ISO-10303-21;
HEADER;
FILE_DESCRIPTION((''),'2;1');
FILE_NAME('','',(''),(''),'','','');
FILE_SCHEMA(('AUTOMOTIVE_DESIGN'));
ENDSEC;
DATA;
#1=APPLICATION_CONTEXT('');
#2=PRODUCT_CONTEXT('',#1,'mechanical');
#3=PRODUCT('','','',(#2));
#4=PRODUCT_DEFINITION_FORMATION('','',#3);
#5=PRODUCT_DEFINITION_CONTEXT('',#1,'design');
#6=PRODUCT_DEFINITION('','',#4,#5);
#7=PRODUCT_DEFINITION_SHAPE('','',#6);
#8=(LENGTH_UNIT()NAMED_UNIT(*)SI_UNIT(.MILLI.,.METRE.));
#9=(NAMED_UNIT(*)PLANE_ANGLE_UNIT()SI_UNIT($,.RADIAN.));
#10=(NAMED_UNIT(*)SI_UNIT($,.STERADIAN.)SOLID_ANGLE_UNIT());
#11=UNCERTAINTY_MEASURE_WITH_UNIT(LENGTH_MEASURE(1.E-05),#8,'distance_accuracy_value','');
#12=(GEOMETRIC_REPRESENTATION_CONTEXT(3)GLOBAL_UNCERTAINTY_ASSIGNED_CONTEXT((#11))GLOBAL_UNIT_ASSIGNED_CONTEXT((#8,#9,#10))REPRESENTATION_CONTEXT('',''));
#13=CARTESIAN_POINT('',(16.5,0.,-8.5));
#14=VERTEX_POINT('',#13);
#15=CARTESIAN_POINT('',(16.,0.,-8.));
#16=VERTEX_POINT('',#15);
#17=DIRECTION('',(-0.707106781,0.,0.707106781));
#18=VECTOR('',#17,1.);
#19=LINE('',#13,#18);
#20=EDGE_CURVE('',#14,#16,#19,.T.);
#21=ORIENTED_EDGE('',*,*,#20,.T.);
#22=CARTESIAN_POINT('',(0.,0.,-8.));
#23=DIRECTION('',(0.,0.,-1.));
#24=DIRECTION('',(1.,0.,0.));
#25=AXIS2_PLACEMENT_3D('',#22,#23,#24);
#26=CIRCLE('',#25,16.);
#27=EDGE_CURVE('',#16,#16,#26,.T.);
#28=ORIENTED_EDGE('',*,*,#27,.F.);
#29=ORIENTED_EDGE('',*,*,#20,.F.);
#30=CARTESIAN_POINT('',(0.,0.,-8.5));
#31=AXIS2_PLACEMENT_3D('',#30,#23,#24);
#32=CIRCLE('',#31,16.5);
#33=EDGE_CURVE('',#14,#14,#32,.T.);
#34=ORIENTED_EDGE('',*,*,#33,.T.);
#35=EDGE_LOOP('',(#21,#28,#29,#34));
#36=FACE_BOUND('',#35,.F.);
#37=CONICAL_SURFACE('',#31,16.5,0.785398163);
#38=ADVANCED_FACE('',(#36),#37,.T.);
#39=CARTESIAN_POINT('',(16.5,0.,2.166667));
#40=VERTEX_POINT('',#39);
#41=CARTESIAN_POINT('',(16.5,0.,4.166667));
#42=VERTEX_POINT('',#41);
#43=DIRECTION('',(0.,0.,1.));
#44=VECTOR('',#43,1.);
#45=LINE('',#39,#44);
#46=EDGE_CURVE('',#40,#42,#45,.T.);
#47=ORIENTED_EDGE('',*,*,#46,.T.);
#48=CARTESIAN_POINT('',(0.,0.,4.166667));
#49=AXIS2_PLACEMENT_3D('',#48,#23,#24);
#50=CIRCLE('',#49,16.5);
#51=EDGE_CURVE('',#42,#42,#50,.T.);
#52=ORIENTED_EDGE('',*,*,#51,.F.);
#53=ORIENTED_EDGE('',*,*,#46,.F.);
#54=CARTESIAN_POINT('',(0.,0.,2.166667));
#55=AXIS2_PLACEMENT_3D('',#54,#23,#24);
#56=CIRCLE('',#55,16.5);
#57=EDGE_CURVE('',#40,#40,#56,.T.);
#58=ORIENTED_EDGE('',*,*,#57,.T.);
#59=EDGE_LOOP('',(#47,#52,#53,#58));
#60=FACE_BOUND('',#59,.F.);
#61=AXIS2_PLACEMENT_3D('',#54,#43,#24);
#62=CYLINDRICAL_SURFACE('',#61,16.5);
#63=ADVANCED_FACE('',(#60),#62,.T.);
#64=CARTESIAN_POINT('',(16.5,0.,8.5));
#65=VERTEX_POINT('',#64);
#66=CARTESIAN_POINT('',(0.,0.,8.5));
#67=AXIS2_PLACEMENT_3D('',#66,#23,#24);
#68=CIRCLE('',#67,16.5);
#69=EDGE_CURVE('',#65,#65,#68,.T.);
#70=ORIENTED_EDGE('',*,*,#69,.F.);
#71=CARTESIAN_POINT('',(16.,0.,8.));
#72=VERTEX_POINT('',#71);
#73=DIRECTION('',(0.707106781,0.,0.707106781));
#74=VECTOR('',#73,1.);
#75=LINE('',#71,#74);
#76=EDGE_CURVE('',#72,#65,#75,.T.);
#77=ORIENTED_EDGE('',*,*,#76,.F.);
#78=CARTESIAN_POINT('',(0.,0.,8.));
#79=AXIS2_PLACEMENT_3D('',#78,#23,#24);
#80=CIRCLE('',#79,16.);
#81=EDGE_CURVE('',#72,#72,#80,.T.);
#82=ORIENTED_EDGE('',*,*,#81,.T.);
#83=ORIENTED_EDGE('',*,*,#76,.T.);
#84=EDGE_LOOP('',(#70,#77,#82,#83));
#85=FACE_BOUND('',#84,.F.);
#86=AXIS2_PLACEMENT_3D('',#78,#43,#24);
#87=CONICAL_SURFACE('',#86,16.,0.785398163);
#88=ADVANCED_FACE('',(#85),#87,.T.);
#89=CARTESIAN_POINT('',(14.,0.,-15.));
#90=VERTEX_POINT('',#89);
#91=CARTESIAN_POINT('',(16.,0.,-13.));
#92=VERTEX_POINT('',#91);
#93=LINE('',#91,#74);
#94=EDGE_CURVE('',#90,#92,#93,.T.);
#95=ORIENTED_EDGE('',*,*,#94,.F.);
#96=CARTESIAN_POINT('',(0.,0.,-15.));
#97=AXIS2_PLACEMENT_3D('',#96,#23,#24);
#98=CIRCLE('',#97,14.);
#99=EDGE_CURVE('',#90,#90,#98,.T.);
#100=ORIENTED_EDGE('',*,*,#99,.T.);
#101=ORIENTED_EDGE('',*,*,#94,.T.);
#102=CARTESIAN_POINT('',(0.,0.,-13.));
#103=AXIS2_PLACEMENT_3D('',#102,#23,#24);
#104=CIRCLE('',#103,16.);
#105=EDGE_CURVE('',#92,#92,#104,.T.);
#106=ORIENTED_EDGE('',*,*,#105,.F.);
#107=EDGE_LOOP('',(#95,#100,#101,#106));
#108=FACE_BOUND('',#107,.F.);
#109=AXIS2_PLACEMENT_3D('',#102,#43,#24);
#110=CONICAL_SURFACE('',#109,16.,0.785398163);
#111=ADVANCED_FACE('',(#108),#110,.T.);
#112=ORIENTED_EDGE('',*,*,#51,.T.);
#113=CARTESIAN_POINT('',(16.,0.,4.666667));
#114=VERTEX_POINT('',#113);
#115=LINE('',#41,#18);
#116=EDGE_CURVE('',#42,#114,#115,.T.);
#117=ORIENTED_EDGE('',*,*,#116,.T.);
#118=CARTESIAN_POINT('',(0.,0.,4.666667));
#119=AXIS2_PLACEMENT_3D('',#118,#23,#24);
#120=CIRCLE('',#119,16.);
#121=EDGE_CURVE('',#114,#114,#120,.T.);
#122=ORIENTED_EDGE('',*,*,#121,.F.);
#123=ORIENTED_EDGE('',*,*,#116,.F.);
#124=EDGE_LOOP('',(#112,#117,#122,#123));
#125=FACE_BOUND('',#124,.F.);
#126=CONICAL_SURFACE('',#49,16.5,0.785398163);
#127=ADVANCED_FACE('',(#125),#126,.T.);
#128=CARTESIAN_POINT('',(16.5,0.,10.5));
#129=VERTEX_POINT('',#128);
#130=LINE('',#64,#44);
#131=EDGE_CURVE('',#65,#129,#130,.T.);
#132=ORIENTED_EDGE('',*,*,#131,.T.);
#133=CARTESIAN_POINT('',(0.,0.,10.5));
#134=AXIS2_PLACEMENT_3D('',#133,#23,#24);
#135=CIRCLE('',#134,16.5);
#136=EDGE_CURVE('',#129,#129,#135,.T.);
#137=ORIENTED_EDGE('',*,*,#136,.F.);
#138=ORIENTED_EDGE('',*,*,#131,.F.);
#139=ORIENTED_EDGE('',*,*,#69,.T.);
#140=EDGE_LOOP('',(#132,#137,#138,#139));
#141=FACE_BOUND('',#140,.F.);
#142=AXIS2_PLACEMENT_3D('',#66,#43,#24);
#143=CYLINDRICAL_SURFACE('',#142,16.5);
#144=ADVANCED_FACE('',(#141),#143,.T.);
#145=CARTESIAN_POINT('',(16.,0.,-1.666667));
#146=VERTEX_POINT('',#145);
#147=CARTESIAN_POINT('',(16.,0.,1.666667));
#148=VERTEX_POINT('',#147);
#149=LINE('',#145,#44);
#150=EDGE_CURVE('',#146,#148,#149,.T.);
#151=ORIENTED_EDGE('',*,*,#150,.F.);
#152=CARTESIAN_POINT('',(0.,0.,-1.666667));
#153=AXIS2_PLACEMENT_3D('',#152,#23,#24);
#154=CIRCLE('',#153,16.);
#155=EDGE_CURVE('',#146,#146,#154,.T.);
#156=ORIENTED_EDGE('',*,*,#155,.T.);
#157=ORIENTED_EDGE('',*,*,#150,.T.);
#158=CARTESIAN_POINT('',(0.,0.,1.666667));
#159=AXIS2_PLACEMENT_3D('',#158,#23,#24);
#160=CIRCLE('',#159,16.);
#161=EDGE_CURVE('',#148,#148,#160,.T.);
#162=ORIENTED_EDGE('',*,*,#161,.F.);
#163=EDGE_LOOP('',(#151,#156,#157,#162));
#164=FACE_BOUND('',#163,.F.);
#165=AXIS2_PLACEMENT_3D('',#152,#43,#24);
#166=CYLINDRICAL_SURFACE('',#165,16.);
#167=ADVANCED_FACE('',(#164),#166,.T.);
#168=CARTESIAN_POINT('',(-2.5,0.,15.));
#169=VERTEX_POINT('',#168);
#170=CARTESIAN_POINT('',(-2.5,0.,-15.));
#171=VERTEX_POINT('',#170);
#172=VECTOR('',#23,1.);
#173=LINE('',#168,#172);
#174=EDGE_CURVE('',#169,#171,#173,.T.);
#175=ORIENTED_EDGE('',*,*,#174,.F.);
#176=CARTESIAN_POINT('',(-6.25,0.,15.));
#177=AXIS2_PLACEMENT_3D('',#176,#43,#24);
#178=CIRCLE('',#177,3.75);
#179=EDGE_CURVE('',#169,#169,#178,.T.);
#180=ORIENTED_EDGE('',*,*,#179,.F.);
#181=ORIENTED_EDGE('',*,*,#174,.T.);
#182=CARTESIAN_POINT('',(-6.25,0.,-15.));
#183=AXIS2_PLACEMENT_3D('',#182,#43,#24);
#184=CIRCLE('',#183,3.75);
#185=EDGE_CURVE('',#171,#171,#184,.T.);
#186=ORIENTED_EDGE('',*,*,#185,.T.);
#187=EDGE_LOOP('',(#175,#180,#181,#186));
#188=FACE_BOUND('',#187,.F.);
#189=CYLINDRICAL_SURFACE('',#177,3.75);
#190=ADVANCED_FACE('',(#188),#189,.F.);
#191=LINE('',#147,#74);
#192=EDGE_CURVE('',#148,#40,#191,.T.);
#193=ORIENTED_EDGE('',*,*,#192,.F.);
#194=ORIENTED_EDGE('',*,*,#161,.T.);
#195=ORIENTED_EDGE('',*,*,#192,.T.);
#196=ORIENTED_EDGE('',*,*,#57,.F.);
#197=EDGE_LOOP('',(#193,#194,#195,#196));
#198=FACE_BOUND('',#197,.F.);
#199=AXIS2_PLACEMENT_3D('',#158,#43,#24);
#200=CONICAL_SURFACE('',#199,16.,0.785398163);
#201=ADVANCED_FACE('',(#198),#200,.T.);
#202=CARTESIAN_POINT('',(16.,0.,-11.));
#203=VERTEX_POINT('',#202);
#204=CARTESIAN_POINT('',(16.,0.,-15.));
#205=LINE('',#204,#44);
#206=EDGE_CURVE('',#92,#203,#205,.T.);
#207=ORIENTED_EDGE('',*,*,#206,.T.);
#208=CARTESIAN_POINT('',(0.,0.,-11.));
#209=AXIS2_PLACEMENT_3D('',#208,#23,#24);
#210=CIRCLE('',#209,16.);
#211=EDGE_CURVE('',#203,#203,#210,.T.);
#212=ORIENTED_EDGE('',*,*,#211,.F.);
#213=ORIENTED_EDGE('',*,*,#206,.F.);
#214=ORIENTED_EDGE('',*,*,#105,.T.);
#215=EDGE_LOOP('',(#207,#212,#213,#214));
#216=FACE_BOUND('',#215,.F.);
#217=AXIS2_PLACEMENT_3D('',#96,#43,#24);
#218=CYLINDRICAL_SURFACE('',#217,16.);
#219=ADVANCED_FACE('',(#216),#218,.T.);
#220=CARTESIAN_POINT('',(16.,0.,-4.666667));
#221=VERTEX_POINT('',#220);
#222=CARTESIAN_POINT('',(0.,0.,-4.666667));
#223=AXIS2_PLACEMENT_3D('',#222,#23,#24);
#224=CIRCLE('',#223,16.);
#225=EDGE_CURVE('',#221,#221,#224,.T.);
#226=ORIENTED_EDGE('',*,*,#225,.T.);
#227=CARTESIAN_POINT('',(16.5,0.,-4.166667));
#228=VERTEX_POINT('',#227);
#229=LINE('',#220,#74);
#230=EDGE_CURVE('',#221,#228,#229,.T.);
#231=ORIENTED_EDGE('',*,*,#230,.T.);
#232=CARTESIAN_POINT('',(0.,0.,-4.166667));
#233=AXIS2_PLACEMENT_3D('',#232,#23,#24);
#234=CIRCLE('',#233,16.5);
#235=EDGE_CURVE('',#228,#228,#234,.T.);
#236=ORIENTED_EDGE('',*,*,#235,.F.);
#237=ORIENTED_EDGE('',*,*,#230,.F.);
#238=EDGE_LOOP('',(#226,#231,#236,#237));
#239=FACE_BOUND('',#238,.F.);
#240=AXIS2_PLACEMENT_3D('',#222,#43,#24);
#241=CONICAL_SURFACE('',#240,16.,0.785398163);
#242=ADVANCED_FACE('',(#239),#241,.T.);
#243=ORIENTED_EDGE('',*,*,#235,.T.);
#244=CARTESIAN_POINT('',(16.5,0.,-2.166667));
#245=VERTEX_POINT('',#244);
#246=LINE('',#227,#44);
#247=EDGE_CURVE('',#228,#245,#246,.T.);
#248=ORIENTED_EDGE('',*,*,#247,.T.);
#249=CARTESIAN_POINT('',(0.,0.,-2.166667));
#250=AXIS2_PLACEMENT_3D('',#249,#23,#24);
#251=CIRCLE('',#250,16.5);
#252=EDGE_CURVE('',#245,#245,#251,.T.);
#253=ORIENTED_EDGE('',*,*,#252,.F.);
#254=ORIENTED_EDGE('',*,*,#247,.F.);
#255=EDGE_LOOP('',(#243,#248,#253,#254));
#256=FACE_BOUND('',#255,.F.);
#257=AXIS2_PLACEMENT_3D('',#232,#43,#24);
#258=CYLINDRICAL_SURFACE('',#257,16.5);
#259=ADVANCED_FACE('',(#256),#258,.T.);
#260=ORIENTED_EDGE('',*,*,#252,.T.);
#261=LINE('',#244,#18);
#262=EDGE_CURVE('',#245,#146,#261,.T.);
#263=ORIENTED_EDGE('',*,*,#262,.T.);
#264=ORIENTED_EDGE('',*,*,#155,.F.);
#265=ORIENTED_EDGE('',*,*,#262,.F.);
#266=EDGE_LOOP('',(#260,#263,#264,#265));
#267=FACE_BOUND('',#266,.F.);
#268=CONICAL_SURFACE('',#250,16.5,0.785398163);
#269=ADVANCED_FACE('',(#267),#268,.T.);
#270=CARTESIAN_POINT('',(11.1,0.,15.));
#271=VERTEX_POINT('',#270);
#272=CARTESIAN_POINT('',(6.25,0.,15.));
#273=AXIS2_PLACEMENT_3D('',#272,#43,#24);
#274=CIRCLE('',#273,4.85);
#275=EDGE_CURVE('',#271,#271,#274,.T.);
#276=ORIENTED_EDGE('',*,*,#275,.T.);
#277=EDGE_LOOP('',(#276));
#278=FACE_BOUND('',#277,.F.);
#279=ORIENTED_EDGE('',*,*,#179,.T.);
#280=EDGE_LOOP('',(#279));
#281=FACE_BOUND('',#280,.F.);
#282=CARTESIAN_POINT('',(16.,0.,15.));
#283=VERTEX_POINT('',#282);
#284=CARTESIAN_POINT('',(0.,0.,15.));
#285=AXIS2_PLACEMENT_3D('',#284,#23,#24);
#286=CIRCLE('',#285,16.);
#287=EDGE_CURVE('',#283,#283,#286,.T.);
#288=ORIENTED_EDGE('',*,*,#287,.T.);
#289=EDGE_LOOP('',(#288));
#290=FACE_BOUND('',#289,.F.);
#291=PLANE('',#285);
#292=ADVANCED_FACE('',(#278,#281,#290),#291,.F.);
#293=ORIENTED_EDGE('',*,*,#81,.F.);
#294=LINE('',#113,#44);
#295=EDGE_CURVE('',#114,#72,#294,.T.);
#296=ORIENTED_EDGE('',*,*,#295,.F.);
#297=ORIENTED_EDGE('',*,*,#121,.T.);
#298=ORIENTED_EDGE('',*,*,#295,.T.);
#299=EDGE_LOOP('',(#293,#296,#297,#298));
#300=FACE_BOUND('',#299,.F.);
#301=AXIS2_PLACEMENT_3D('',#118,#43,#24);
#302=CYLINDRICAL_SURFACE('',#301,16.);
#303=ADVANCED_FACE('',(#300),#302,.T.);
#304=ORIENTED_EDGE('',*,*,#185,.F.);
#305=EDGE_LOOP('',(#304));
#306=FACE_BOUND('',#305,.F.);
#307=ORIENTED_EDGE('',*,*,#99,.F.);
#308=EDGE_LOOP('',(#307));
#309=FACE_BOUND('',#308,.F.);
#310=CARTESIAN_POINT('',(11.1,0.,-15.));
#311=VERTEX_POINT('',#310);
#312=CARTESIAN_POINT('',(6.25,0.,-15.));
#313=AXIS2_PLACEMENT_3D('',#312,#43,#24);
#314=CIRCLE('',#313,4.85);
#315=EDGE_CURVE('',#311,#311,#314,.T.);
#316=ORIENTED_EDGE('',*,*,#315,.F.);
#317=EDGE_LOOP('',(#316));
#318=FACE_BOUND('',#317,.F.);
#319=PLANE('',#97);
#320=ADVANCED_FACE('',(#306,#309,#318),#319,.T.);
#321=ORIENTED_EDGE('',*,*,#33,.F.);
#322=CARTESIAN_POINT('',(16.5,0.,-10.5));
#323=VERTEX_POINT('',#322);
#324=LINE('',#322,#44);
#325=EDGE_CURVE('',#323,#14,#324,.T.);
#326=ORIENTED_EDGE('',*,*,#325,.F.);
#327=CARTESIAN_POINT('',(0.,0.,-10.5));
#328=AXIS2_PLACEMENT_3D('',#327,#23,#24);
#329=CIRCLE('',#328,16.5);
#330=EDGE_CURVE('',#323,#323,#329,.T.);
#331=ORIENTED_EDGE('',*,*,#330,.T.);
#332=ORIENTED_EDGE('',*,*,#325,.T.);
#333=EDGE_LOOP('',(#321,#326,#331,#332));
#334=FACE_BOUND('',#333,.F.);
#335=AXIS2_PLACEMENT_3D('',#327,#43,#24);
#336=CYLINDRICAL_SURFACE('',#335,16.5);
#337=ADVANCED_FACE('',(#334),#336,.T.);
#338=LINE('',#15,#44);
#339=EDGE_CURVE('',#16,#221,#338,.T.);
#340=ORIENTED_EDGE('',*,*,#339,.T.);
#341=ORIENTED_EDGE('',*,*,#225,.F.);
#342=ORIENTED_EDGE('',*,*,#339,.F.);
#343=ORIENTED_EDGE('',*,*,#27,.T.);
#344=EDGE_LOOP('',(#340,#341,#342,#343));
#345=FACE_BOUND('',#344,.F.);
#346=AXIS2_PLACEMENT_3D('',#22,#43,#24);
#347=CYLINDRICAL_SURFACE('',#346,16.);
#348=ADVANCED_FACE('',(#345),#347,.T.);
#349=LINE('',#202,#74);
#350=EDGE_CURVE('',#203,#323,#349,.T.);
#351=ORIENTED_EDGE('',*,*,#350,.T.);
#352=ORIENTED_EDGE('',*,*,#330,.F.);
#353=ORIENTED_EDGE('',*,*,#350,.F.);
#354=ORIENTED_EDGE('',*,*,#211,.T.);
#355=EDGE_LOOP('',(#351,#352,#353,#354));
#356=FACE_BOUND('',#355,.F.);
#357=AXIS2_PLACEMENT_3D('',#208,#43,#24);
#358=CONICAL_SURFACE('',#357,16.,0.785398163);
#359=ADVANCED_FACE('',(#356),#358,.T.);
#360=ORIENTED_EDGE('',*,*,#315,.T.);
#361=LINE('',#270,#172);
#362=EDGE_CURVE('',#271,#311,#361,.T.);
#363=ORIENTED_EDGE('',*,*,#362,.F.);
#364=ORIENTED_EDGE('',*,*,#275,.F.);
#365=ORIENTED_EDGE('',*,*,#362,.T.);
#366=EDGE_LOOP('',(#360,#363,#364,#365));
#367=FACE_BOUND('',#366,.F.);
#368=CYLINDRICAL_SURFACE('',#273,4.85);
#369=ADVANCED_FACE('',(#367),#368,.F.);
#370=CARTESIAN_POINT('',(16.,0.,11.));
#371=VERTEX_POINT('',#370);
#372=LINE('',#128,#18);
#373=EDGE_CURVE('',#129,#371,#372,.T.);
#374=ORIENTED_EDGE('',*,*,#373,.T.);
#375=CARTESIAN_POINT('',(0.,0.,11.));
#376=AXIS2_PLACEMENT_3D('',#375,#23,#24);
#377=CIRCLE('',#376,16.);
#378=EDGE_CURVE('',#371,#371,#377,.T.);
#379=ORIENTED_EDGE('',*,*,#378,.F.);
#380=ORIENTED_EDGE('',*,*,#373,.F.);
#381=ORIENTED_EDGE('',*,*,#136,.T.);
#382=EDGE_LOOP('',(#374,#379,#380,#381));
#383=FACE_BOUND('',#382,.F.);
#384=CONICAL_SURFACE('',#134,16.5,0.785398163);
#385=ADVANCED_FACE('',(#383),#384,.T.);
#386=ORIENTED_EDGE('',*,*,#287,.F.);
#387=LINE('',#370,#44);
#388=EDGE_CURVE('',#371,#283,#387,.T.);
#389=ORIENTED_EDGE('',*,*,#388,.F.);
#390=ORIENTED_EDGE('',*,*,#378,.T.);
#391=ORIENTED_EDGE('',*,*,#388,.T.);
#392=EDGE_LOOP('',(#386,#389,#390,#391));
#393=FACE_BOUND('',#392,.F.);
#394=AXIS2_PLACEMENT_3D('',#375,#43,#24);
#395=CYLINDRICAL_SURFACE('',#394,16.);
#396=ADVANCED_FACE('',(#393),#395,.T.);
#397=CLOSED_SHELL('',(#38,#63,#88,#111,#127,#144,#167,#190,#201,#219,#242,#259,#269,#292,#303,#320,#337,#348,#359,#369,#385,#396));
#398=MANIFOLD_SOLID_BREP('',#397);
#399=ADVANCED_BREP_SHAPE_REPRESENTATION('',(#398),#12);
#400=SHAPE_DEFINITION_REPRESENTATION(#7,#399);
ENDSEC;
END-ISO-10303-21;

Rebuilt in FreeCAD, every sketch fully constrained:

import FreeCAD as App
import Part
import Sketcher
Q = App.Units.Quantity


def edges_at(feature, points):
    """Names of the edges that pass closest to the given points."""
    edges = feature.Shape.Edges
    near = lambda p: min(range(len(edges)), key=lambda i: edges[i].distToShape(Part.Vertex(*p))[0])
    return sorted({f"Edge{near(p) + 1}" for p in points})


def add_polygon(sketch, points):
    """Adds a closed chain of lines whose ends are joined by coincident constraints."""
    first, n = sketch.GeometryCount, len(points)
    for a, b in zip(points, points[1:] + points[:1]):
        sketch.addGeometry(Part.LineSegment(App.Vector(*a, 0), App.Vector(*b, 0)), False)
    for i in range(n):
        sketch.addConstraint(Sketcher.Constraint("Coincident", first + i, 2, first + (i + 1) % n, 1))

doc = App.newDocument("Part")
body = doc.addObject("PartDesign::Body", "Body")

sketch1 = doc.addObject("Sketcher::SketchObject", "Sketch")
body.addObject(sketch1)
sketch1.AttachmentSupport = (doc.XZ_Plane, [""])
sketch1.MapMode = "FlatFace"
add_polygon(sketch1, [(16, 15), (0, 15), (0, -15), (16, -15), (16, -11), (16.5, -10.5), (16.5, -8.5), (16, -8), (16, -4.7), (16.5, -4.2), (16.5, -2.2), (16, -1.7), (16, 1.7), (16.5, 2.2), (16.5, 4.2), (16, 4.7), (16, 8), (16.5, 8.5), (16.5, 10.5), (16, 11)])
sketch1.addConstraint([
    Sketcher.Constraint("Horizontal", 0),
    Sketcher.Constraint("Vertical", 1),
    Sketcher.Constraint("Horizontal", 2),
    Sketcher.Constraint("Vertical", 3),
    Sketcher.Constraint("Vertical", 5),
    Sketcher.Constraint("Vertical", 7),
    Sketcher.Constraint("Vertical", 9),
    Sketcher.Constraint("Vertical", 11),
    Sketcher.Constraint("Vertical", 13),
    Sketcher.Constraint("Vertical", 15),
    Sketcher.Constraint("Vertical", 17),
    Sketcher.Constraint("Vertical", 19),
    Sketcher.Constraint("Symmetric", 0, 2, 1, 2, -1, 1),
    Sketcher.Constraint("Symmetric", 9, 2, 12, 2, -1),
    Sketcher.Constraint("Symmetric", 7, 2, 14, 2, -1),
    Sketcher.Constraint("Symmetric", 5, 2, 16, 2, -1),
    Sketcher.Constraint("Symmetric", 3, 2, 18, 2, -1),
    Sketcher.Constraint("Perpendicular", 4, 6),
    Sketcher.Constraint("Perpendicular", 6, 8),
    Sketcher.Constraint("Perpendicular", 8, 10),
    Sketcher.Constraint("Perpendicular", 10, 12),
    Sketcher.Constraint("Perpendicular", 12, 14),
    Sketcher.Constraint("Perpendicular", 14, 16),
    Sketcher.Constraint("Perpendicular", 16, 18),
    Sketcher.Constraint("Vertical", 3, 2, 6, 2),
    Sketcher.Constraint("Vertical", 5, 2, 8, 2),
    Sketcher.Constraint("Vertical", 7, 2, 10, 2),
    Sketcher.Constraint("Equal", 5, 9),
    Sketcher.Constraint("Equal", 7, 11),
    Sketcher.Constraint("Equal", 9, 13),
    Sketcher.Constraint("DistanceX", 0, 2, 0, 1, Q("16 mm")),
    Sketcher.Constraint("DistanceY", 1, 2, 1, 1, Q("30 mm")),
    Sketcher.Constraint("DistanceY", 3, 1, 3, 2, Q("4 mm")),
    Sketcher.Constraint("DistanceY", 5, 1, 5, 2, Q("2 mm")),
    Sketcher.Constraint("DistanceY", 6, 2, -1, 1, Q("8 mm")),
])
revolution = doc.addObject("PartDesign::Revolution", "Revolution")
body.addObject(revolution)
revolution.Profile = sketch1
revolution.ReferenceAxis = (sketch1, ["V_Axis"])
revolution.Angle = 360

sketch2 = doc.addObject("Sketcher::SketchObject", "Sketch001")
body.addObject(sketch2)
sketch2.AttachmentSupport = (doc.XY_Plane, [""])
sketch2.MapMode = "FlatFace"
sketch2.AttachmentOffset = App.Placement(App.Vector(0, 0, 15), App.Rotation())
sketch2.addGeometry([
    Part.Circle(App.Vector(-6.2, 0, 0), App.Vector(0, 0, 1), 3.8),
    Part.Circle(App.Vector(6.2, 0, 0), App.Vector(0, 0, 1), 4.8),
], False)
sketch2.addConstraint([
    Sketcher.Constraint("Symmetric", 0, 3, 1, 3, -1, 1),
    Sketcher.Constraint("PointOnObject", 0, 3, -1),
    Sketcher.Constraint("Diameter", 0, Q("7.5 mm")),
    Sketcher.Constraint("Diameter", 1, Q("9.7 mm")),
    Sketcher.Constraint("DistanceX", 0, 3, 1, 3, Q("12.5 mm")),
])
pocket1 = doc.addObject("PartDesign::Pocket", "Pocket")
body.addObject(pocket1)
pocket1.Profile = sketch2
pocket1.Type = "ThroughAll"
doc.recompute()

chamfer = doc.addObject("PartDesign::Chamfer", "Chamfer")
body.addObject(chamfer)
chamfer.Base = (pocket1, edges_at(pocket1, [(-16, 0, -15)]))
chamfer.Size = 2

doc.recompute()
